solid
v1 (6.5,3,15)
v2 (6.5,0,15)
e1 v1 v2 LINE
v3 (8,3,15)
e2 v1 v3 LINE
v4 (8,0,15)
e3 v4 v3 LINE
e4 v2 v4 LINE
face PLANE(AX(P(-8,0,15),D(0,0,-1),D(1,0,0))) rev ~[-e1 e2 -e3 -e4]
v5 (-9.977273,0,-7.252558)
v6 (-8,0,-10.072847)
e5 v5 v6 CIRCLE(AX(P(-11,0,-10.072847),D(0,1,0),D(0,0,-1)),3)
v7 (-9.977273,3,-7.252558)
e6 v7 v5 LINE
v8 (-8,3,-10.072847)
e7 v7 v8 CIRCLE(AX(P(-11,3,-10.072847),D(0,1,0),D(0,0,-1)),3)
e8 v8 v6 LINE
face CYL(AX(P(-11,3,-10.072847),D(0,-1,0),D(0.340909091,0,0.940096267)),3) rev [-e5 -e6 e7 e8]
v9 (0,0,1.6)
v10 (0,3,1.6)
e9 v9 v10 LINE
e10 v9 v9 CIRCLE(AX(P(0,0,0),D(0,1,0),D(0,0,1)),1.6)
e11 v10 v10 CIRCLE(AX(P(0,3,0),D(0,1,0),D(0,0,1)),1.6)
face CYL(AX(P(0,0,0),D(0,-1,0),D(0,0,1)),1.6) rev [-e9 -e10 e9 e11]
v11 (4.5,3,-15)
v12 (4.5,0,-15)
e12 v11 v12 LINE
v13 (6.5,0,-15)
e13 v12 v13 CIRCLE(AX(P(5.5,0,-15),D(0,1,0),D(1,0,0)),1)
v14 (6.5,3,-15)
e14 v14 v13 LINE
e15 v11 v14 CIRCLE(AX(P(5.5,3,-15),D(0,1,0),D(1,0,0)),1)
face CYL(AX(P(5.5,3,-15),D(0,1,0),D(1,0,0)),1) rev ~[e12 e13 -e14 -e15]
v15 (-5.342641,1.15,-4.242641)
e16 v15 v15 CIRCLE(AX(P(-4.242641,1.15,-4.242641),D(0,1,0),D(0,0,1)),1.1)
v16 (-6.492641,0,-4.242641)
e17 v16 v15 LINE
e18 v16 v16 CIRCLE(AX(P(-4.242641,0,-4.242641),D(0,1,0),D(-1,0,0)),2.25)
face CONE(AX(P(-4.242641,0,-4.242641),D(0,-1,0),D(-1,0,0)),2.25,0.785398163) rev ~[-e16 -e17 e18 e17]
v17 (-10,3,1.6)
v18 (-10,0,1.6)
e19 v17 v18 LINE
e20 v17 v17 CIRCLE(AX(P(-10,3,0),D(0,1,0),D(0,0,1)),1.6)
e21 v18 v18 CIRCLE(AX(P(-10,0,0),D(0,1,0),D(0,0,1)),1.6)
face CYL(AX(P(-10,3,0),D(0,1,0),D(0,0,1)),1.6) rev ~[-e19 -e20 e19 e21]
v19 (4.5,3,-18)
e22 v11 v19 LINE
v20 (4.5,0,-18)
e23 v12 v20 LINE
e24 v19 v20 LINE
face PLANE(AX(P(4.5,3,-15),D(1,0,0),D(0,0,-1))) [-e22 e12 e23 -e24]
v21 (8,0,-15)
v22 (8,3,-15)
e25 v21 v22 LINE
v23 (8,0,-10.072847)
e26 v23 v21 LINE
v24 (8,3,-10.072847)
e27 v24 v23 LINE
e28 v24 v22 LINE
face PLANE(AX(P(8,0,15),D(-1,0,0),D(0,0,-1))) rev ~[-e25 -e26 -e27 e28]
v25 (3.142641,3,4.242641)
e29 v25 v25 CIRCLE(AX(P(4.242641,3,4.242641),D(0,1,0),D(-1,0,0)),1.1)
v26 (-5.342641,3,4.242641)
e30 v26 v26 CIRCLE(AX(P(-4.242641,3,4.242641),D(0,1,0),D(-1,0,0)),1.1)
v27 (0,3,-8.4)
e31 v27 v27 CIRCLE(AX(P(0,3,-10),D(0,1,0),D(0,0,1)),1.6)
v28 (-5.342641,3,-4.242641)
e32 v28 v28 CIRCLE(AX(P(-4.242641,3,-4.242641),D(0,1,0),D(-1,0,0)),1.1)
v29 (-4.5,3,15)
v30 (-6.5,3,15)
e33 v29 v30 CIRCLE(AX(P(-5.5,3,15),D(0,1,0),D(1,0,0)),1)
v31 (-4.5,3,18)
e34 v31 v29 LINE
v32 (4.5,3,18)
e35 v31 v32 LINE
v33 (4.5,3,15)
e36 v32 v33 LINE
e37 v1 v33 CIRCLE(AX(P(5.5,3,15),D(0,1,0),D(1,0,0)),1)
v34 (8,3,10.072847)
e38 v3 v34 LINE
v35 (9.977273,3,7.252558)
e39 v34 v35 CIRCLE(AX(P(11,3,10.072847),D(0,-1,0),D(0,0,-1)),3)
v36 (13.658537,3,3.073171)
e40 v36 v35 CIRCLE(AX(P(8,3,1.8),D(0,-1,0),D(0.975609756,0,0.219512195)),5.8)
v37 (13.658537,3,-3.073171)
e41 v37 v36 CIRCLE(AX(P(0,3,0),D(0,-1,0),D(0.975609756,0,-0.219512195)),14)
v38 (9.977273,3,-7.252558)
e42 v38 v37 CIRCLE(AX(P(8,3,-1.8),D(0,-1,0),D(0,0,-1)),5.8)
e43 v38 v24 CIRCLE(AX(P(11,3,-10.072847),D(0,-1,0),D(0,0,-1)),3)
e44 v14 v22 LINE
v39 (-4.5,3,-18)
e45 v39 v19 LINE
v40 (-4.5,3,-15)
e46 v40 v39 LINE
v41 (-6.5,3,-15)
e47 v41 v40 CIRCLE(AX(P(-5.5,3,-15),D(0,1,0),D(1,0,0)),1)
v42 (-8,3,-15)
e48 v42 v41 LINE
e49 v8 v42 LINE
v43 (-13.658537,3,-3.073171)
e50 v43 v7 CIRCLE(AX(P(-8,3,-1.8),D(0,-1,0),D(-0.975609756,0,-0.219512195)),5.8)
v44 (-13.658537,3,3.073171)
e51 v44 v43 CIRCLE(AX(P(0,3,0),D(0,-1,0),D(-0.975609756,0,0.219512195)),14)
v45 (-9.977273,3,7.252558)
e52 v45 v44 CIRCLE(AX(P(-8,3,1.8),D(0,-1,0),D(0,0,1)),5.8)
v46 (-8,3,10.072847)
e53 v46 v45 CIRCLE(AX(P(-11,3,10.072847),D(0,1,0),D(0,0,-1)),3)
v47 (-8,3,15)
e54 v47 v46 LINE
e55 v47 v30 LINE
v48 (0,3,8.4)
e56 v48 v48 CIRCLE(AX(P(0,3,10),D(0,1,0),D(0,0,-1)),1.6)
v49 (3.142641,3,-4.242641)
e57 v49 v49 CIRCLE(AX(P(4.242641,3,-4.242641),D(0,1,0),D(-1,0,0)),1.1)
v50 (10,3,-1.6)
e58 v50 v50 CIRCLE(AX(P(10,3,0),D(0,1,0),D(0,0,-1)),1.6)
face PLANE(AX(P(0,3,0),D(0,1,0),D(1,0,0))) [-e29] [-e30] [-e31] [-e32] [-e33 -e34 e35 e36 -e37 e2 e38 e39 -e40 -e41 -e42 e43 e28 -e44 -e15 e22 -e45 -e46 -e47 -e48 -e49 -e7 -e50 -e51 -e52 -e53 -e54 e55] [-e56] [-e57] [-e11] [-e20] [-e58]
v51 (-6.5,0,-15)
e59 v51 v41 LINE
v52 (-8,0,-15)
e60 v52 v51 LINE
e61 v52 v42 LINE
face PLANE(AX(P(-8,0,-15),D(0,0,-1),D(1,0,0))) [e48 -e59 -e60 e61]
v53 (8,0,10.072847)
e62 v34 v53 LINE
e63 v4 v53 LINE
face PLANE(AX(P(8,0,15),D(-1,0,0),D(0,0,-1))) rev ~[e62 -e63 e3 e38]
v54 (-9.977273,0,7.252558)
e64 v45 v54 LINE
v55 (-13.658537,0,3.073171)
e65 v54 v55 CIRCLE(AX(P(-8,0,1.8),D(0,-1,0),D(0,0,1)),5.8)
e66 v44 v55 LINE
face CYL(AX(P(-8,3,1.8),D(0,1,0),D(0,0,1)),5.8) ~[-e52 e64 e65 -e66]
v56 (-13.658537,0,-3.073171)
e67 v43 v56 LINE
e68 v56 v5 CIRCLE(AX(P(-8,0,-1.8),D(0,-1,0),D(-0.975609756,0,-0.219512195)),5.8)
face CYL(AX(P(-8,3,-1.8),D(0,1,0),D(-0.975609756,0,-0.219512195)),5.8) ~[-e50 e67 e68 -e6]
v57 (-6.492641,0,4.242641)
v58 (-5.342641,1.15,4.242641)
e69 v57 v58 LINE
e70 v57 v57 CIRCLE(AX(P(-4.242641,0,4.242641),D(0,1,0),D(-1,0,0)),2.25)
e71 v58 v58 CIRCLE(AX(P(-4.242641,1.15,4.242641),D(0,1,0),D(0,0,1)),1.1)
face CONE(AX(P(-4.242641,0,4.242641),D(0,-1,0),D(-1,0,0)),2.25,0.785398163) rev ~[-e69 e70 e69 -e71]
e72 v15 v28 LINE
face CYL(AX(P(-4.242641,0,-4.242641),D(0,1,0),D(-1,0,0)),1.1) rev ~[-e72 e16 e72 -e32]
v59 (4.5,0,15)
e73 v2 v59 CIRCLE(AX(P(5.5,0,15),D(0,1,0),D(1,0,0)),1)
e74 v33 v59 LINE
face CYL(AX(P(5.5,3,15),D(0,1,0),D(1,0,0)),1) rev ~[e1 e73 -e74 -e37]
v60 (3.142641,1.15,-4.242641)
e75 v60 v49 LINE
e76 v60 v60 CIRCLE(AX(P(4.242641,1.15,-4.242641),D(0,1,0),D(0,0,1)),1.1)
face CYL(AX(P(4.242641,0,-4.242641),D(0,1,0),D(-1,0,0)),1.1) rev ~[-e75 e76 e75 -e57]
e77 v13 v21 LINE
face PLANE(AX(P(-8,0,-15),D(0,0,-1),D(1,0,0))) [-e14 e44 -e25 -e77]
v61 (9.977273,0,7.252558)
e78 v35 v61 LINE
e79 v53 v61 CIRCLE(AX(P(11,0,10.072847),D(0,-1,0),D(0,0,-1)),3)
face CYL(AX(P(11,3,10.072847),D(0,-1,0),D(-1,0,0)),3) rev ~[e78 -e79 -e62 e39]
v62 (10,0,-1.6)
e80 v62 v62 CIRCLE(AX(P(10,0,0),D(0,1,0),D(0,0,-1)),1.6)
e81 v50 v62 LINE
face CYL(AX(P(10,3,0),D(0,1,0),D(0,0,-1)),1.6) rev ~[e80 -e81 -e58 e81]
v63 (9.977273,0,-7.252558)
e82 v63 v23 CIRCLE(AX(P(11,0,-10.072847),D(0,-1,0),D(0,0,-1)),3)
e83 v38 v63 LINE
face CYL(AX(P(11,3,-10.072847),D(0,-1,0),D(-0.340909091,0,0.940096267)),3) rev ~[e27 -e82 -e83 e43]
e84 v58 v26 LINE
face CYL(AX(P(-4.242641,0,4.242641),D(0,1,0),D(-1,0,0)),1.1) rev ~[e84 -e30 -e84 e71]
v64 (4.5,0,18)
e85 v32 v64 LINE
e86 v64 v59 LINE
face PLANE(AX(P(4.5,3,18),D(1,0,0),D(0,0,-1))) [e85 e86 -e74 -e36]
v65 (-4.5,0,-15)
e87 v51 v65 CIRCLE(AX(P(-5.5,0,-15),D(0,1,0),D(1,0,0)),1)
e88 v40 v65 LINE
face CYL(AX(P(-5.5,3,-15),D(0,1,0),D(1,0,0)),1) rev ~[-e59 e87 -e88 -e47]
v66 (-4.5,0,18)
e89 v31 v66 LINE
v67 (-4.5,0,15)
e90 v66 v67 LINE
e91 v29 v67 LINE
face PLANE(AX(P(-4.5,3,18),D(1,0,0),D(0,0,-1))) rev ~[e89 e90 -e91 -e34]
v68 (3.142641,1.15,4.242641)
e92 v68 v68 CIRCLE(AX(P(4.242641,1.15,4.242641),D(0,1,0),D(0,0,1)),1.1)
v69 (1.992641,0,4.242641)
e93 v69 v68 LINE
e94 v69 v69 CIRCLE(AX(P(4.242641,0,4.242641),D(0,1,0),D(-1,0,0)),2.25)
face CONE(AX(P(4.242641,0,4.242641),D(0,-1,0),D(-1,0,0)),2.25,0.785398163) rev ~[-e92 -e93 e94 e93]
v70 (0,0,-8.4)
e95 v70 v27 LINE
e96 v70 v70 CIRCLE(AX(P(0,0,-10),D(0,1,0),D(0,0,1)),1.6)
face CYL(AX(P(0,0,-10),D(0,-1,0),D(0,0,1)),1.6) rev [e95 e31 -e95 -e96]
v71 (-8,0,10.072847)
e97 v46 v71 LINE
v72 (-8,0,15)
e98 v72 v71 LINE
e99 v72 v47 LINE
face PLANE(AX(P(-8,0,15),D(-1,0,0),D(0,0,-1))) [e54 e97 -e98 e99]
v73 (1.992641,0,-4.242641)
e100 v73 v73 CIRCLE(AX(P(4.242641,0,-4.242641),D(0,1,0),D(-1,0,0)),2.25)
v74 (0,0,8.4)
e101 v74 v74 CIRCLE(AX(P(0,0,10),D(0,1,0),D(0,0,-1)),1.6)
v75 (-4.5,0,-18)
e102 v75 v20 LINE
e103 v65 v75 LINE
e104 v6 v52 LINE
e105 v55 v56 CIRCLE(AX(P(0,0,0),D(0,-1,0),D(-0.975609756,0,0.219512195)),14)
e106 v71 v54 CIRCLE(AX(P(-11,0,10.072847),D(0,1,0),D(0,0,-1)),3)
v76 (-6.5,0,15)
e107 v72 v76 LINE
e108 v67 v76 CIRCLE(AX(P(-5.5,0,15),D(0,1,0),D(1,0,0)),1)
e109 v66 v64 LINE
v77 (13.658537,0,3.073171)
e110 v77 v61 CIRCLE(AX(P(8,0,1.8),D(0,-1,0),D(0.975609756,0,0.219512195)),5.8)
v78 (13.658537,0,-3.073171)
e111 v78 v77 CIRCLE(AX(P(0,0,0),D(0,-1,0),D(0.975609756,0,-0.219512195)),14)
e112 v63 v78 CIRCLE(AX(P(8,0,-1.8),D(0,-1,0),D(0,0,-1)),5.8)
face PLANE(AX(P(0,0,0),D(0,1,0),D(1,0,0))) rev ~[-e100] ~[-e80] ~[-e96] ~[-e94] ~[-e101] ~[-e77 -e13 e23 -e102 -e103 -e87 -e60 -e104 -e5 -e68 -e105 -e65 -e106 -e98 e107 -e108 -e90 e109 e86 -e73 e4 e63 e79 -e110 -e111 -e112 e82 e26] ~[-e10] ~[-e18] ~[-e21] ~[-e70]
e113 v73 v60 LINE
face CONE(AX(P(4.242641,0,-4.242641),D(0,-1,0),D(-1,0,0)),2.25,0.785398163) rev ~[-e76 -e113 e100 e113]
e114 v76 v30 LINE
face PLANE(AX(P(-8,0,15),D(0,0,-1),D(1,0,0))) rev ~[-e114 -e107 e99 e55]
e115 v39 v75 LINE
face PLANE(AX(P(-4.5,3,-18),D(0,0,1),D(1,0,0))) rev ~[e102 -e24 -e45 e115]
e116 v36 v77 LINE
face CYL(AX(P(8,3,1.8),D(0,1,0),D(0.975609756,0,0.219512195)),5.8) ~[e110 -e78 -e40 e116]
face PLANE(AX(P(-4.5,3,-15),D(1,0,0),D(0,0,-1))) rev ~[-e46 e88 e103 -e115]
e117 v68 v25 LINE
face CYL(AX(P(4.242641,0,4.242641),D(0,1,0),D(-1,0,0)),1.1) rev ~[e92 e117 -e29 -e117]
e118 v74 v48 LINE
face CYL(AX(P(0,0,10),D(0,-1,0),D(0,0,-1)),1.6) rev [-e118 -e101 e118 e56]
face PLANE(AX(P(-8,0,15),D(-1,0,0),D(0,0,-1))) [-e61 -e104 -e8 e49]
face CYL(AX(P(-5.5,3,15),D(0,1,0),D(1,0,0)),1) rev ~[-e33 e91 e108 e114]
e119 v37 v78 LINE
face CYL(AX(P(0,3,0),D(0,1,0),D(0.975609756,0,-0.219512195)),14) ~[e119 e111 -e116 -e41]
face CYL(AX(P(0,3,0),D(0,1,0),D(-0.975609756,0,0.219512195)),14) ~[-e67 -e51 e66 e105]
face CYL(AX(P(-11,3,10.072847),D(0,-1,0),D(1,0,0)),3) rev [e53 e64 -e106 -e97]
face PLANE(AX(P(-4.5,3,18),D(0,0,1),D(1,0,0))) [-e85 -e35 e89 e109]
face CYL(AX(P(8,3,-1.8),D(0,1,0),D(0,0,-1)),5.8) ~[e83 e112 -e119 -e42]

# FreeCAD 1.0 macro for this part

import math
import FreeCAD as App
import Part
import Sketcher
from FreeCAD import Vector


def edges_at(feature, points):
    """Names of the edges that pass closest to the given points."""
    edges = feature.Shape.Edges
    near = lambda p: min(range(len(edges)), key=lambda i: edges[i].distToShape(Part.Vertex(*p))[0])
    return sorted({f"Edge{near(p) + 1}" for p in points})

doc = App.newDocument("Part")
body = doc.addObject("PartDesign::Body", "Body")

# Sketch on XZ plane
sketch1 = doc.addObject("Sketcher::SketchObject", "Sketch")
body.addObject(sketch1)
sketch1.AttachmentSupport = (doc.XZ_Plane, [""])
sketch1.MapMode = "FlatFace"
sketch1.addGeometry([
    Part.LineSegment(Vector(-8, -15, 0), Vector(-8, 15, 0)),  # 0
    Part.LineSegment(Vector(-8, 15, 0), Vector(8, 15, 0)),  # 1
    Part.LineSegment(Vector(8, 15, 0), Vector(8, -15, 0)),  # 2
    Part.LineSegment(Vector(8, -15, 0), Vector(-8, -15, 0)),  # 3
    Part.Circle(Vector(0, 10, 0), Vector(0, 0, 1), 1.6),  # 4
    Part.Circle(Vector(0, 0, 0), Vector(0, 0, 1), 1.6),  # 5
    Part.Circle(Vector(0, -10, 0), Vector(0, 0, 1), 1.6),  # 6
], False)
sketch1.addConstraint([
    Sketcher.Constraint("Coincident", 0, 2, 1, 1),
    Sketcher.Constraint("Coincident", 1, 2, 2, 1),
    Sketcher.Constraint("Coincident", 2, 2, 3, 1),
    Sketcher.Constraint("Coincident", 3, 2, 0, 1),
    Sketcher.Constraint("Vertical", 0),
    Sketcher.Constraint("Horizontal", 1),
    Sketcher.Constraint("Vertical", 2),
    Sketcher.Constraint("Horizontal", 3),
    Sketcher.Constraint("Coincident", 5, 3, -1, 1),
    Sketcher.Constraint("Equal", 4, 5),
    Sketcher.Constraint("Equal", 5, 6),
    Sketcher.Constraint("Symmetric", 4, 3, 6, 3, -1, 1),
    Sketcher.Constraint("Symmetric", 0, 2, 2, 2, -1, 1),
    Sketcher.Constraint("PointOnObject", 4, 3, -2),
    Sketcher.Constraint("Diameter", 4, 3.2),
    Sketcher.Constraint("DistanceX", 1, 1, 1, 2, 16.0),
    Sketcher.Constraint("DistanceY", 0, 1, 0, 2, 30.0),
    Sketcher.Constraint("DistanceY", -1, 1, 4, 3, 10.0),
])
pad1 = doc.addObject("PartDesign::Pad", "Pad")
body.addObject(pad1)
pad1.Profile = sketch1
pad1.Length = 3
pad1.Reversed = True

# Sketch on XZ plane
sketch2 = doc.addObject("Sketcher::SketchObject", "Sketch001")
body.addObject(sketch2)
sketch2.AttachmentSupport = (doc.XZ_Plane, [""])
sketch2.MapMode = "FlatFace"
sketch2.AttachmentOffset = App.Placement(Vector(0, 0, -3), App.Rotation())
sketch2.addGeometry([
    Part.LineSegment(Vector(-4.5, -18, 0), Vector(-4.5, -15, 0)),  # 0
    Part.LineSegment(Vector(-4.5, -15, 0), Vector(4.5, -15, 0)),  # 1
    Part.LineSegment(Vector(4.5, -15, 0), Vector(4.5, -18, 0)),  # 2
    Part.LineSegment(Vector(4.5, -18, 0), Vector(-4.5, -18, 0)),  # 3
    Part.LineSegment(Vector(-4.5, 15, 0), Vector(-4.5, 18, 0)),  # 4
    Part.LineSegment(Vector(-4.5, 18, 0), Vector(4.5, 18, 0)),  # 5
    Part.LineSegment(Vector(4.5, 18, 0), Vector(4.5, 15, 0)),  # 6
    Part.LineSegment(Vector(4.5, 15, 0), Vector(-4.5, 15, 0)),  # 7
], False)
sketch2.addConstraint([
    Sketcher.Constraint("Coincident", 0, 2, 1, 1),
    Sketcher.Constraint("Coincident", 1, 2, 2, 1),
    Sketcher.Constraint("Coincident", 2, 2, 3, 1),
    Sketcher.Constraint("Coincident", 3, 2, 0, 1),
    Sketcher.Constraint("Coincident", 4, 2, 5, 1),
    Sketcher.Constraint("Coincident", 5, 2, 6, 1),
    Sketcher.Constraint("Coincident", 6, 2, 7, 1),
    Sketcher.Constraint("Coincident", 7, 2, 4, 1),
    Sketcher.Constraint("Vertical", 0),
    Sketcher.Constraint("Horizontal", 1),
    Sketcher.Constraint("Vertical", 2),
    Sketcher.Constraint("Horizontal", 3),
    Sketcher.Constraint("Vertical", 4),
    Sketcher.Constraint("Horizontal", 5),
    Sketcher.Constraint("Vertical", 6),
    Sketcher.Constraint("Horizontal", 7),
    Sketcher.Constraint("Symmetric", 2, 2, 4, 2, -1, 1),
    Sketcher.Constraint("Symmetric", 0, 2, 6, 2, -1, 1),
    Sketcher.Constraint("Vertical", 3, 2, 4, 2),
    Sketcher.Constraint("DistanceX", 1, 1, 1, 2, 9.0),
    Sketcher.Constraint("DistanceY", 0, 1, 0, 2, 3.0),
    Sketcher.Constraint("DistanceY", 0, 2, -1, 1, 15.0),
])
pad2 = doc.addObject("PartDesign::Pad", "Pad001")
body.addObject(pad2)
pad2.Profile = sketch2
pad2.Length = 3

# Sketch on XZ plane
sketch3 = doc.addObject("Sketcher::SketchObject", "Sketch002")
body.addObject(sketch3)
sketch3.AttachmentSupport = (doc.XZ_Plane, [""])
sketch3.MapMode = "FlatFace"
sketch3.AttachmentOffset = App.Placement(Vector(0, 0, -3), App.Rotation())
sketch3.addGeometry([
    Part.Circle(Vector(-5.5, -15, 0), Vector(0, 0, 1), 1),
    Part.Circle(Vector(5.5, -15, 0), Vector(0, 0, 1), 1),
    Part.Circle(Vector(5.5, 15, 0), Vector(0, 0, 1), 1),
    Part.Circle(Vector(-5.5, 15, 0), Vector(0, 0, 1), 1),
], False)
sketch3.addConstraint([
    Sketcher.Constraint("Equal", 0, 1),
    Sketcher.Constraint("Equal", 1, 2),
    Sketcher.Constraint("Equal", 2, 3),
    Sketcher.Constraint("Symmetric", 0, 3, 2, 3, -1, 1),
    Sketcher.Constraint("Symmetric", 1, 3, 3, 3, -1, 1),
    Sketcher.Constraint("Symmetric", 0, 3, 1, 3, -2),
    Sketcher.Constraint("Diameter", 0, 2.0),
    Sketcher.Constraint("DistanceY", 0, 3, -1, 1, 15.0),
    Sketcher.Constraint("DistanceX", 0, 3, 1, 3, 11.0),
])
pocket1 = doc.addObject("PartDesign::Pocket", "Pocket")
body.addObject(pocket1)
pocket1.Profile = sketch3
pocket1.Type = "ThroughAll"
pocket1.Reversed = True

# Sketch on XZ plane
sketch4 = doc.addObject("Sketcher::SketchObject", "Sketch003")
body.addObject(sketch4)
sketch4.AttachmentSupport = (doc.XZ_Plane, [""])
sketch4.MapMode = "FlatFace"
sketch4.AttachmentOffset = App.Placement(Vector(0, 0, -3), App.Rotation())
sketch4.addGeometry([
    Part.LineSegment(Vector(8, -7.6, 0), Vector(8, 7.6, 0)),  # 0
    Part.ArcOfCircle(Part.Circle(Vector(8, 1.8, 0), Vector(0, 0, 1), 5.8), math.radians(12.680383), math.radians(90)),  # 1
    Part.ArcOfCircle(Part.Circle(Vector(0, 0, 0), Vector(0, 0, 1), 14), math.radians(-12.680384), math.radians(12.680384)),  # 2
    Part.ArcOfCircle(Part.Circle(Vector(8, -1.8, 0), Vector(0, 0, 1), 5.8), math.radians(-90), math.radians(-12.680383)),  # 3
    Part.Circle(Vector(10, 0, 0), Vector(0, 0, 1), 1.6),  # 4
    Part.LineSegment(Vector(-8, 7.6, 0), Vector(-8, -7.6, 0)),  # 5
    Part.ArcOfCircle(Part.Circle(Vector(-8, -1.8, 0), Vector(0, 0, 1), 5.8), math.radians(-167.319617), math.radians(-90)),  # 6
    Part.ArcOfCircle(Part.Circle(Vector(0, 0, 0), Vector(0, 0, 1), 14), math.radians(167.319616), math.radians(192.680384)),  # 7
    Part.ArcOfCircle(Part.Circle(Vector(-8, 1.8, 0), Vector(0, 0, 1), 5.8), math.radians(90), math.radians(167.319617)),  # 8
    Part.Circle(Vector(-10, 0, 0), Vector(0, 0, 1), 1.6),  # 9
], False)
sketch4.addConstraint([
    Sketcher.Constraint("Coincident", 0, 2, 1, 2),
    Sketcher.Constraint("Tangent", 1, 1, 2, 2),
    Sketcher.Constraint("Tangent", 2, 1, 3, 2),
    Sketcher.Constraint("Coincident", 3, 1, 0, 1),
    Sketcher.Constraint("Coincident", 5, 2, 6, 2),
    Sketcher.Constraint("Tangent", 6, 1, 7, 2),
    Sketcher.Constraint("Tangent", 7, 1, 8, 2),
    Sketcher.Constraint("Coincident", 8, 1, 5, 1),
    Sketcher.Constraint("Vertical", 0),
    Sketcher.Constraint("Vertical", 5),
    Sketcher.Constraint("Coincident", 2, 3, -1, 1),
    Sketcher.Constraint("Coincident", 7, 3, -1, 1),
    Sketcher.Constraint("Equal", 1, 3),
    Sketcher.Constraint("Equal", 3, 6),
    Sketcher.Constraint("Equal", 2, 7),
    Sketcher.Constraint("Equal", 6, 8),
    Sketcher.Constraint("Equal", 4, 9),
    Sketcher.Constraint("Symmetric", 4, 3, 9, 3, -1, 1),
    Sketcher.Constraint("Symmetric", 0, 2, 5, 2, -1, 1),
    Sketcher.Constraint("PointOnObject", 4, 3, -1),
    Sketcher.Constraint("Horizontal", 3, 3, 6, 3),
    Sketcher.Constraint("Horizontal", 1, 3, 8, 3),
    Sketcher.Constraint("Vertical", 3, 3, 0, 2),
    Sketcher.Constraint("Radius", 2, 14.0),
    Sketcher.Constraint("Diameter", 4, 3.2),
    Sketcher.Constraint("Radius", 1, 5.8),
    Sketcher.Constraint("DistanceY", 0, 1, 0, 2, 15.2),
    Sketcher.Constraint("DistanceX", -1, 1, 4, 3, 10.0),
])
pad3 = doc.addObject("PartDesign::Pad", "Pad002")
body.addObject(pad3)
pad3.Profile = sketch4
pad3.Length = 3

# Sketch on XZ plane
sketch5 = doc.addObject("Sketcher::SketchObject", "Sketch004")
body.addObject(sketch5)
sketch5.AttachmentSupport = (doc.XZ_Plane, [""])
sketch5.MapMode = "FlatFace"
sketch5.AttachmentOffset = App.Placement(Vector(0, 0, -3), App.Rotation())
sketch5.addGeometry([
    Part.Circle(Vector(-4.242641, -4.242641, 0), Vector(0, 0, 1), 1),
    Part.Circle(Vector(4.242641, -4.242641, 0), Vector(0, 0, 1), 1),
    Part.Circle(Vector(4.242641, 4.242641, 0), Vector(0, 0, 1), 1),
    Part.Circle(Vector(-4.242641, 4.242641, 0), Vector(0, 0, 1), 1),
], False)
sketch5.addConstraint([
    Sketcher.Constraint("Equal", 0, 1),
    Sketcher.Constraint("Equal", 1, 2),
    Sketcher.Constraint("Equal", 2, 3),
    Sketcher.Constraint("Symmetric", 0, 3, 2, 3, -1, 1),
    Sketcher.Constraint("Symmetric", 1, 3, 3, 3, -1, 1),
    Sketcher.Constraint("Symmetric", 0, 3, 1, 3, -2),
    Sketcher.Constraint("Diameter", 0, 2.0),
    Sketcher.Constraint("DistanceX", 0, 3, -1, 1, 4.242641),
    Sketcher.Constraint("DistanceY", 0, 3, -1, 1, 4.242641),
])
pocket2 = doc.addObject("PartDesign::Pocket", "Pocket001")
body.addObject(pocket2)
pocket2.Profile = sketch5
pocket2.Type = "ThroughAll"
pocket2.Reversed = True
doc.recompute()

fillet = doc.addObject("PartDesign::Fillet", "Fillet")
body.addObject(fillet)
fillet.Base = (pocket2, edges_at(pocket2, [
    (-8, 1.5, 7.6),
    (-8, 1.5, -7.6),
    (8, 1.5, 7.6),
    (8, 1.5, -7.6),
]))
fillet.Radius = 3

# Sketch on XZ plane
sketch6 = doc.addObject("Sketcher::SketchObject", "Sketch005")
body.addObject(sketch6)
sketch6.AttachmentSupport = (doc.XZ_Plane, [""])
sketch6.MapMode = "FlatFace"
sketch6.addGeometry([
    Part.Circle(Vector(-4.242641, -4.242641, 0), Vector(0, 0, 1), 1.1),
    Part.Circle(Vector(4.242641, -4.242641, 0), Vector(0, 0, 1), 1.1),
    Part.Circle(Vector(-4.242641, 4.242641, 0), Vector(0, 0, 1), 1.1),
    Part.Circle(Vector(4.242641, 4.242641, 0), Vector(0, 0, 1), 1.1),
], False)
sketch6.addConstraint([
    Sketcher.Constraint("Equal", 0, 1),
    Sketcher.Constraint("Equal", 1, 2),
    Sketcher.Constraint("Equal", 2, 3),
    Sketcher.Constraint("Symmetric", 1, 3, 2, 3, -1, 1),
    Sketcher.Constraint("Symmetric", 0, 3, 3, 3, -1, 1),
    Sketcher.Constraint("Symmetric", 0, 3, 1, 3, -2),
    Sketcher.Constraint("Diameter", 0, 2.2),
    Sketcher.Constraint("DistanceX", 0, 3, -1, 1, 4.242641),
    Sketcher.Constraint("DistanceY", 0, 3, -1, 1, 4.242641),
])
doc.recompute()
hole = doc.addObject("PartDesign::Hole", "Hole")
body.addObject(hole)
hole.Profile = sketch6
hole.ThreadType = "None"
hole.Diameter = 2.2
hole.DepthType = "ThroughAll"
hole.HoleCutType = "Countersink"
hole.HoleCutDiameter = 4.5
hole.HoleCutCountersinkAngle = 90

doc.recompute()
